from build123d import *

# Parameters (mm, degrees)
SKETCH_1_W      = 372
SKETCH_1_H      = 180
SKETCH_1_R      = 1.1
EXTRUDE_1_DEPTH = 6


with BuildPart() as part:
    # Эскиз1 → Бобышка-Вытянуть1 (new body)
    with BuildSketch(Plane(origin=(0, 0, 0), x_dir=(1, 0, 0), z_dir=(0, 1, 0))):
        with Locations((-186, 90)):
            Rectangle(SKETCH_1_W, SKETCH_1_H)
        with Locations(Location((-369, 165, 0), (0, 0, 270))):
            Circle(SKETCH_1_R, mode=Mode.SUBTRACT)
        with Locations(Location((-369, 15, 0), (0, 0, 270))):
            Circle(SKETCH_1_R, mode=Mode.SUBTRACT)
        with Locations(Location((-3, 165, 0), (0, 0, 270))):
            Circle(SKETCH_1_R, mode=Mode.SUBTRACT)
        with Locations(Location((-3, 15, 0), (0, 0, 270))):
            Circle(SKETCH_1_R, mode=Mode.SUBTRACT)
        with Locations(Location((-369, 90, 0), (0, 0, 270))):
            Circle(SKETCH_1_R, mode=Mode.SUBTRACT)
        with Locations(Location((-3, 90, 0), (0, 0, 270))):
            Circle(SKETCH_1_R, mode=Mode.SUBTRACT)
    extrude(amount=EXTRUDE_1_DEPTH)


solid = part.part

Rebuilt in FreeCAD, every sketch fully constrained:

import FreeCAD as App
import Part
import Sketcher

V = App.Vector
Q = App.Units.Quantity

doc = App.newDocument("Part")
body = doc.addObject("PartDesign::Body", "Body")

# Sketch on XZ plane
sketch1 = doc.addObject("Sketcher::SketchObject", "Sketch")
body.addObject(sketch1)
sketch1.AttachmentSupport = (doc.XZ_Plane, [""])
sketch1.MapMode = "FlatFace"
sketch1.addGeometry(Part.LineSegment(V(-372, -180, 0), V(-372, 0, 0)), False)
sketch1.addGeometry(Part.LineSegment(V(-372, 0, 0), V(0, 0, 0)), False)
sketch1.addGeometry(Part.LineSegment(V(0, 0, 0), V(0, -180, 0)), False)
sketch1.addGeometry(Part.LineSegment(V(0, -180, 0), V(-372, -180, 0)), False)
sketch1.addGeometry(Part.Circle(V(-369, -15, 0), V(0, 0, 1), 1.1), False)
sketch1.addGeometry(Part.Circle(V(-3, -15, 0), V(0, 0, 1), 1.1), False)
sketch1.addGeometry(Part.Circle(V(-369, -90, 0), V(0, 0, 1), 1.1), False)
sketch1.addGeometry(Part.Circle(V(-369, -165, 0), V(0, 0, 1), 1.1), False)
sketch1.addGeometry(Part.Circle(V(-3, -90, 0), V(0, 0, 1), 1.1), False)
sketch1.addGeometry(Part.Circle(V(-3, -165, 0), V(0, 0, 1), 1.1), False)
sketch1.addConstraint(Sketcher.Constraint("Coincident", 0, 2, 1, 1))
sketch1.addConstraint(Sketcher.Constraint("Coincident", 1, 2, 2, 1))
sketch1.addConstraint(Sketcher.Constraint("Coincident", 2, 2, 3, 1))
sketch1.addConstraint(Sketcher.Constraint("Coincident", 3, 2, 0, 1))
sketch1.addConstraint(Sketcher.Constraint("Vertical", 0))
sketch1.addConstraint(Sketcher.Constraint("Horizontal", 1))
sketch1.addConstraint(Sketcher.Constraint("Vertical", 2))
sketch1.addConstraint(Sketcher.Constraint("Horizontal", 3))
sketch1.addConstraint(Sketcher.Constraint("Coincident", 1, 2, -1, 1))
sketch1.addConstraint(Sketcher.Constraint("Equal", 4, 5))
sketch1.addConstraint(Sketcher.Constraint("Equal", 5, 6))
sketch1.addConstraint(Sketcher.Constraint("Equal", 6, 7))
sketch1.addConstraint(Sketcher.Constraint("Equal", 7, 8))
sketch1.addConstraint(Sketcher.Constraint("Equal", 8, 9))
sketch1.addConstraint(Sketcher.Constraint("Horizontal", 4, 3, 5, 3))
sketch1.addConstraint(Sketcher.Constraint("Horizontal", 6, 3, 8, 3))
sketch1.addConstraint(Sketcher.Constraint("Horizontal", 7, 3, 9, 3))
sketch1.addConstraint(Sketcher.Constraint("Vertical", 4, 3, 6, 3))
sketch1.addConstraint(Sketcher.Constraint("Vertical", 6, 3, 7, 3))
sketch1.addConstraint(Sketcher.Constraint("Vertical", 5, 3, 8, 3))
sketch1.addConstraint(Sketcher.Constraint("Vertical", 8, 3, 9, 3))
sketch1.addConstraint(Sketcher.Constraint("Diameter", 4, Q("2.2 mm")))
sketch1.addConstraint(Sketcher.Constraint("DistanceX", 1, 1, 1, 2, Q("372 mm")))
sketch1.addConstraint(Sketcher.Constraint("DistanceY", 0, 1, 0, 2, Q("180 mm")))
sketch1.addConstraint(Sketcher.Constraint("DistanceX", 4, 3, -1, 1, Q("369 mm")))
sketch1.addConstraint(Sketcher.Constraint("DistanceY", 4, 3, -1, 1, Q("15 mm")))
sketch1.addConstraint(Sketcher.Constraint("DistanceX", 5, 3, -1, 1, Q("3 mm")))
sketch1.addConstraint(Sketcher.Constraint("DistanceY", 6, 3, -1, 1, Q("90 mm")))
sketch1.addConstraint(Sketcher.Constraint("DistanceY", 7, 3, -1, 1, Q("165 mm")))
pad1 = doc.addObject("PartDesign::Pad", "Pad")
body.addObject(pad1)
pad1.Profile = sketch1
pad1.Length = 6
pad1.Reversed = True

doc.recompute()
